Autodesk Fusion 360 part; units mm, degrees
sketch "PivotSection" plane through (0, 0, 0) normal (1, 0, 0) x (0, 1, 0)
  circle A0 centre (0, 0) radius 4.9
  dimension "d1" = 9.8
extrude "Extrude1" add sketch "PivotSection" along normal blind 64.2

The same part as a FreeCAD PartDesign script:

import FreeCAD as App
import Part
import Sketcher

V = App.Vector
Q = App.Units.Quantity

doc = App.newDocument("Part")
params = doc.addObject("Spreadsheet::Sheet", "Params")
for row, (alias, value) in enumerate([
    ("sketch1_diameter", "9.8 mm"),
    ("pad1_length", "64.2 mm"),
], start=1):
    params.set(f"A{row}", alias)
    params.set(f"B{row}", "=" + value)
    params.setAlias(f"B{row}", alias)

body = doc.addObject("PartDesign::Body", "Body")

sketch1 = body.newObject("Sketcher::SketchObject", "Sketch")
sketch1.AttachmentSupport = (doc.getObject("YZ_Plane"), [""])
sketch1.MapMode = "FlatFace"
sketch1.addGeometry(Part.Circle(V(0, 0, 0), V(0, 0, 1), 4.9), False)
sketch1.addConstraint([
    Sketcher.Constraint("Coincident", 0, 3, -1, 1),
    Sketcher.Constraint("Diameter", 0, Q("9.8 mm")),
])
sketch1.setExpression("Constraints[1]", "Params.sketch1_diameter")
pad1 = body.newObject("PartDesign::Pad", "Pad")
pad1.Profile = sketch1
pad1.setExpression("Length", "Params.pad1_length")

doc.recompute()
